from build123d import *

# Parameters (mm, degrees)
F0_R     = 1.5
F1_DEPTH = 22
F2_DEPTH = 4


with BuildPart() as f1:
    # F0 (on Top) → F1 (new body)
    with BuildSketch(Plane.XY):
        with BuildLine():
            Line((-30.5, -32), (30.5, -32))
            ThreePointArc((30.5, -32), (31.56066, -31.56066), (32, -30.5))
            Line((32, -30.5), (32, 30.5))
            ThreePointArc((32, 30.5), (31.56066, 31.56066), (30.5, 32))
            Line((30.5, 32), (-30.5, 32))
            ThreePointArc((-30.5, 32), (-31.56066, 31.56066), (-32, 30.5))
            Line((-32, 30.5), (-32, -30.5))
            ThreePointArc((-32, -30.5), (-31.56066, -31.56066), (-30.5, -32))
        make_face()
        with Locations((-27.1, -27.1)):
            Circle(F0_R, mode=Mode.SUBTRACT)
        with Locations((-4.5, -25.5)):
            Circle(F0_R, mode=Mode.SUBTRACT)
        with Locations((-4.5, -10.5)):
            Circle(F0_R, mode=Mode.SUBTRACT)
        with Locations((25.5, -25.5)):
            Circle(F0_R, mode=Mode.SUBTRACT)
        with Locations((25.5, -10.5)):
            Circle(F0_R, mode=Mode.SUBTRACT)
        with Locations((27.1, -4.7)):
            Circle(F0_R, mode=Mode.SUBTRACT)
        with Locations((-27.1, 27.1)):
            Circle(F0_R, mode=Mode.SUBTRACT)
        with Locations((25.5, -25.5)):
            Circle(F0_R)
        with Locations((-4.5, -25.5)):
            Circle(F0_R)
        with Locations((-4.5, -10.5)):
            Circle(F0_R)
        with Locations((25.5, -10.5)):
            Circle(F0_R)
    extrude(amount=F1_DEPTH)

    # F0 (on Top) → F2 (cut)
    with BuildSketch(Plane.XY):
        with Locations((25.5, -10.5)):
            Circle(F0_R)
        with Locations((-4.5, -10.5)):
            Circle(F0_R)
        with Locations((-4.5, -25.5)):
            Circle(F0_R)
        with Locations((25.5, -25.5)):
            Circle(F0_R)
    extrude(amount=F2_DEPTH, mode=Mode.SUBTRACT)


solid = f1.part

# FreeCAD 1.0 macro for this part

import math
import FreeCAD as App
import Part
import Sketcher
Q = App.Units.Quantity

doc = App.newDocument("Part")
params = doc.addObject("Spreadsheet::Sheet", "Params")
for row, (alias, value) in enumerate([
    ("sketch1_diameter", "3 mm"),
    ("sketch1_width", "61 mm"),
    ("pad1_length", "22 mm"),
    ("sketch2_diameter", "3 mm"),
    ("pocket1_length", "4 mm"),
], start=1):
    params.set(f"A{row}", alias)
    params.set(f"B{row}", "=" + value)
    params.setAlias(f"B{row}", alias)

body = doc.addObject("PartDesign::Body", "Body")

sketch1 = doc.addObject("Sketcher::SketchObject", "Sketch")
body.addObject(sketch1)
sketch1.AttachmentSupport = (doc.XY_Plane, [""])
sketch1.MapMode = "FlatFace"
sketch1.addGeometry(Part.LineSegment(App.Vector(-30.5, -32, 0), App.Vector(30.5, -32, 0)), False)
sketch1.addGeometry(Part.ArcOfCircle(Part.Circle(App.Vector(30.499999, -30.499999, 0), App.Vector(0, 0, 1), 1.500001), math.radians(-89.999978), math.radians(-0.000022)), False)
sketch1.addGeometry(Part.LineSegment(App.Vector(32, -30.5, 0), App.Vector(32, 30.5, 0)), False)
sketch1.addGeometry(Part.ArcOfCircle(Part.Circle(App.Vector(30.499999, 30.499999, 0), App.Vector(0, 0, 1), 1.500001), math.radians(0.000022), math.radians(89.999978)), False)
sketch1.addGeometry(Part.LineSegment(App.Vector(30.5, 32, 0), App.Vector(-30.5, 32, 0)), False)
sketch1.addGeometry(Part.ArcOfCircle(Part.Circle(App.Vector(-30.499999, 30.499999, 0), App.Vector(0, 0, 1), 1.500001), math.radians(90.000022), math.radians(179.999978)), False)
sketch1.addGeometry(Part.LineSegment(App.Vector(-32, 30.5, 0), App.Vector(-32, -30.5, 0)), False)
sketch1.addGeometry(Part.ArcOfCircle(Part.Circle(App.Vector(-30.499999, -30.499999, 0), App.Vector(0, 0, 1), 1.500001), math.radians(-179.999978), math.radians(-90.000022)), False)
sketch1.addGeometry(Part.Circle(App.Vector(-27.1, -27.1, 0), App.Vector(0, 0, 1), 1.5), False)
sketch1.addGeometry(Part.Circle(App.Vector(27.1, -4.7, 0), App.Vector(0, 0, 1), 1.5), False)
sketch1.addGeometry(Part.Circle(App.Vector(-27.1, 27.1, 0), App.Vector(0, 0, 1), 1.5), False)
sketch1.addConstraint(Sketcher.Constraint("Tangent", 0, 2, 1, 1))
sketch1.addConstraint(Sketcher.Constraint("Tangent", 1, 2, 2, 1))
sketch1.addConstraint(Sketcher.Constraint("Tangent", 2, 2, 3, 1))
sketch1.addConstraint(Sketcher.Constraint("Tangent", 3, 2, 4, 1))
sketch1.addConstraint(Sketcher.Constraint("Tangent", 4, 2, 5, 1))
sketch1.addConstraint(Sketcher.Constraint("Tangent", 5, 2, 6, 1))
sketch1.addConstraint(Sketcher.Constraint("Tangent", 6, 2, 7, 1))
sketch1.addConstraint(Sketcher.Constraint("Tangent", 7, 2, 0, 1))
sketch1.addConstraint(Sketcher.Constraint("Horizontal", 0))
sketch1.addConstraint(Sketcher.Constraint("Vertical", 2))
sketch1.addConstraint(Sketcher.Constraint("Horizontal", 4))
sketch1.addConstraint(Sketcher.Constraint("Vertical", 6))
sketch1.addConstraint(Sketcher.Constraint("Equal", 1, 3))
sketch1.addConstraint(Sketcher.Constraint("Equal", 3, 5))
sketch1.addConstraint(Sketcher.Constraint("Equal", 5, 7))
sketch1.addConstraint(Sketcher.Constraint("Equal", 7, 8))
sketch1.addConstraint(Sketcher.Constraint("Equal", 8, 9))
sketch1.addConstraint(Sketcher.Constraint("Equal", 9, 10))
sketch1.addConstraint(Sketcher.Constraint("Symmetric", 1, 3, 5, 3, -1, 1))
sketch1.addConstraint(Sketcher.Constraint("Symmetric", 8, 3, 10, 3, -1))
sketch1.addConstraint(Sketcher.Constraint("Equal", 4, 2))
sketch1.addConstraint(Sketcher.Constraint("Diameter", 8, Q("3 mm")))
sketch1.addConstraint(Sketcher.Constraint("DistanceX", 0, 1, 0, 2, Q("61 mm")))
sketch1.addConstraint(Sketcher.Constraint("DistanceX", 8, 3, -1, 1, Q("27.1 mm")))
sketch1.addConstraint(Sketcher.Constraint("DistanceY", 8, 3, -1, 1, Q("27.1 mm")))
sketch1.addConstraint(Sketcher.Constraint("DistanceX", -1, 1, 9, 3, Q("27.1 mm")))
sketch1.addConstraint(Sketcher.Constraint("DistanceY", 9, 3, -1, 1, Q("4.7 mm")))
sketch1.setExpression("Constraints[21]", "Params.sketch1_diameter")
sketch1.setExpression("Constraints[22]", "Params.sketch1_width")
pad1 = doc.addObject("PartDesign::Pad", "Pad")
body.addObject(pad1)
pad1.Profile = sketch1
pad1.setExpression("Length", "Params.pad1_length")

sketch2 = doc.addObject("Sketcher::SketchObject", "Sketch001")
body.addObject(sketch2)
sketch2.AttachmentSupport = (doc.XY_Plane, [""])
sketch2.MapMode = "FlatFace"
sketch2.addGeometry(Part.Circle(App.Vector(25.5, -10.5, 0), App.Vector(0, 0, 1), 1.5), False)
sketch2.addGeometry(Part.Circle(App.Vector(-4.5, -10.5, 0), App.Vector(0, 0, 1), 1.5), False)
sketch2.addGeometry(Part.Circle(App.Vector(-4.5, -25.5, 0), App.Vector(0, 0, 1), 1.5), False)
sketch2.addGeometry(Part.Circle(App.Vector(25.5, -25.5, 0), App.Vector(0, 0, 1), 1.5), False)
sketch2.addConstraint(Sketcher.Constraint("Equal", 0, 1))
sketch2.addConstraint(Sketcher.Constraint("Equal", 1, 2))
sketch2.addConstraint(Sketcher.Constraint("Equal", 2, 3))
sketch2.addConstraint(Sketcher.Constraint("Horizontal", 0, 3, 1, 3))
sketch2.addConstraint(Sketcher.Constraint("Horizontal", 2, 3, 3, 3))
sketch2.addConstraint(Sketcher.Constraint("Vertical", 1, 3, 2, 3))
sketch2.addConstraint(Sketcher.Constraint("Vertical", 0, 3, 3, 3))
sketch2.addConstraint(Sketcher.Constraint("Diameter", 0, Q("3 mm")))
sketch2.addConstraint(Sketcher.Constraint("DistanceX", 1, 3, 0, 3, Q("30 mm")))
sketch2.addConstraint(Sketcher.Constraint("DistanceY", 2, 3, 1, 3, Q("15 mm")))
sketch2.addConstraint(Sketcher.Constraint("DistanceX", -1, 1, 0, 3, Q("25.5 mm")))
sketch2.addConstraint(Sketcher.Constraint("DistanceY", 0, 3, -1, 1, Q("10.5 mm")))
sketch2.setExpression("Constraints[7]", "Params.sketch2_diameter")
pocket1 = doc.addObject("PartDesign::Pocket", "Pocket")
body.addObject(pocket1)
pocket1.Profile = sketch2
pocket1.setExpression("Length", "Params.pocket1_length")
pocket1.Reversed = True

doc.recompute()
